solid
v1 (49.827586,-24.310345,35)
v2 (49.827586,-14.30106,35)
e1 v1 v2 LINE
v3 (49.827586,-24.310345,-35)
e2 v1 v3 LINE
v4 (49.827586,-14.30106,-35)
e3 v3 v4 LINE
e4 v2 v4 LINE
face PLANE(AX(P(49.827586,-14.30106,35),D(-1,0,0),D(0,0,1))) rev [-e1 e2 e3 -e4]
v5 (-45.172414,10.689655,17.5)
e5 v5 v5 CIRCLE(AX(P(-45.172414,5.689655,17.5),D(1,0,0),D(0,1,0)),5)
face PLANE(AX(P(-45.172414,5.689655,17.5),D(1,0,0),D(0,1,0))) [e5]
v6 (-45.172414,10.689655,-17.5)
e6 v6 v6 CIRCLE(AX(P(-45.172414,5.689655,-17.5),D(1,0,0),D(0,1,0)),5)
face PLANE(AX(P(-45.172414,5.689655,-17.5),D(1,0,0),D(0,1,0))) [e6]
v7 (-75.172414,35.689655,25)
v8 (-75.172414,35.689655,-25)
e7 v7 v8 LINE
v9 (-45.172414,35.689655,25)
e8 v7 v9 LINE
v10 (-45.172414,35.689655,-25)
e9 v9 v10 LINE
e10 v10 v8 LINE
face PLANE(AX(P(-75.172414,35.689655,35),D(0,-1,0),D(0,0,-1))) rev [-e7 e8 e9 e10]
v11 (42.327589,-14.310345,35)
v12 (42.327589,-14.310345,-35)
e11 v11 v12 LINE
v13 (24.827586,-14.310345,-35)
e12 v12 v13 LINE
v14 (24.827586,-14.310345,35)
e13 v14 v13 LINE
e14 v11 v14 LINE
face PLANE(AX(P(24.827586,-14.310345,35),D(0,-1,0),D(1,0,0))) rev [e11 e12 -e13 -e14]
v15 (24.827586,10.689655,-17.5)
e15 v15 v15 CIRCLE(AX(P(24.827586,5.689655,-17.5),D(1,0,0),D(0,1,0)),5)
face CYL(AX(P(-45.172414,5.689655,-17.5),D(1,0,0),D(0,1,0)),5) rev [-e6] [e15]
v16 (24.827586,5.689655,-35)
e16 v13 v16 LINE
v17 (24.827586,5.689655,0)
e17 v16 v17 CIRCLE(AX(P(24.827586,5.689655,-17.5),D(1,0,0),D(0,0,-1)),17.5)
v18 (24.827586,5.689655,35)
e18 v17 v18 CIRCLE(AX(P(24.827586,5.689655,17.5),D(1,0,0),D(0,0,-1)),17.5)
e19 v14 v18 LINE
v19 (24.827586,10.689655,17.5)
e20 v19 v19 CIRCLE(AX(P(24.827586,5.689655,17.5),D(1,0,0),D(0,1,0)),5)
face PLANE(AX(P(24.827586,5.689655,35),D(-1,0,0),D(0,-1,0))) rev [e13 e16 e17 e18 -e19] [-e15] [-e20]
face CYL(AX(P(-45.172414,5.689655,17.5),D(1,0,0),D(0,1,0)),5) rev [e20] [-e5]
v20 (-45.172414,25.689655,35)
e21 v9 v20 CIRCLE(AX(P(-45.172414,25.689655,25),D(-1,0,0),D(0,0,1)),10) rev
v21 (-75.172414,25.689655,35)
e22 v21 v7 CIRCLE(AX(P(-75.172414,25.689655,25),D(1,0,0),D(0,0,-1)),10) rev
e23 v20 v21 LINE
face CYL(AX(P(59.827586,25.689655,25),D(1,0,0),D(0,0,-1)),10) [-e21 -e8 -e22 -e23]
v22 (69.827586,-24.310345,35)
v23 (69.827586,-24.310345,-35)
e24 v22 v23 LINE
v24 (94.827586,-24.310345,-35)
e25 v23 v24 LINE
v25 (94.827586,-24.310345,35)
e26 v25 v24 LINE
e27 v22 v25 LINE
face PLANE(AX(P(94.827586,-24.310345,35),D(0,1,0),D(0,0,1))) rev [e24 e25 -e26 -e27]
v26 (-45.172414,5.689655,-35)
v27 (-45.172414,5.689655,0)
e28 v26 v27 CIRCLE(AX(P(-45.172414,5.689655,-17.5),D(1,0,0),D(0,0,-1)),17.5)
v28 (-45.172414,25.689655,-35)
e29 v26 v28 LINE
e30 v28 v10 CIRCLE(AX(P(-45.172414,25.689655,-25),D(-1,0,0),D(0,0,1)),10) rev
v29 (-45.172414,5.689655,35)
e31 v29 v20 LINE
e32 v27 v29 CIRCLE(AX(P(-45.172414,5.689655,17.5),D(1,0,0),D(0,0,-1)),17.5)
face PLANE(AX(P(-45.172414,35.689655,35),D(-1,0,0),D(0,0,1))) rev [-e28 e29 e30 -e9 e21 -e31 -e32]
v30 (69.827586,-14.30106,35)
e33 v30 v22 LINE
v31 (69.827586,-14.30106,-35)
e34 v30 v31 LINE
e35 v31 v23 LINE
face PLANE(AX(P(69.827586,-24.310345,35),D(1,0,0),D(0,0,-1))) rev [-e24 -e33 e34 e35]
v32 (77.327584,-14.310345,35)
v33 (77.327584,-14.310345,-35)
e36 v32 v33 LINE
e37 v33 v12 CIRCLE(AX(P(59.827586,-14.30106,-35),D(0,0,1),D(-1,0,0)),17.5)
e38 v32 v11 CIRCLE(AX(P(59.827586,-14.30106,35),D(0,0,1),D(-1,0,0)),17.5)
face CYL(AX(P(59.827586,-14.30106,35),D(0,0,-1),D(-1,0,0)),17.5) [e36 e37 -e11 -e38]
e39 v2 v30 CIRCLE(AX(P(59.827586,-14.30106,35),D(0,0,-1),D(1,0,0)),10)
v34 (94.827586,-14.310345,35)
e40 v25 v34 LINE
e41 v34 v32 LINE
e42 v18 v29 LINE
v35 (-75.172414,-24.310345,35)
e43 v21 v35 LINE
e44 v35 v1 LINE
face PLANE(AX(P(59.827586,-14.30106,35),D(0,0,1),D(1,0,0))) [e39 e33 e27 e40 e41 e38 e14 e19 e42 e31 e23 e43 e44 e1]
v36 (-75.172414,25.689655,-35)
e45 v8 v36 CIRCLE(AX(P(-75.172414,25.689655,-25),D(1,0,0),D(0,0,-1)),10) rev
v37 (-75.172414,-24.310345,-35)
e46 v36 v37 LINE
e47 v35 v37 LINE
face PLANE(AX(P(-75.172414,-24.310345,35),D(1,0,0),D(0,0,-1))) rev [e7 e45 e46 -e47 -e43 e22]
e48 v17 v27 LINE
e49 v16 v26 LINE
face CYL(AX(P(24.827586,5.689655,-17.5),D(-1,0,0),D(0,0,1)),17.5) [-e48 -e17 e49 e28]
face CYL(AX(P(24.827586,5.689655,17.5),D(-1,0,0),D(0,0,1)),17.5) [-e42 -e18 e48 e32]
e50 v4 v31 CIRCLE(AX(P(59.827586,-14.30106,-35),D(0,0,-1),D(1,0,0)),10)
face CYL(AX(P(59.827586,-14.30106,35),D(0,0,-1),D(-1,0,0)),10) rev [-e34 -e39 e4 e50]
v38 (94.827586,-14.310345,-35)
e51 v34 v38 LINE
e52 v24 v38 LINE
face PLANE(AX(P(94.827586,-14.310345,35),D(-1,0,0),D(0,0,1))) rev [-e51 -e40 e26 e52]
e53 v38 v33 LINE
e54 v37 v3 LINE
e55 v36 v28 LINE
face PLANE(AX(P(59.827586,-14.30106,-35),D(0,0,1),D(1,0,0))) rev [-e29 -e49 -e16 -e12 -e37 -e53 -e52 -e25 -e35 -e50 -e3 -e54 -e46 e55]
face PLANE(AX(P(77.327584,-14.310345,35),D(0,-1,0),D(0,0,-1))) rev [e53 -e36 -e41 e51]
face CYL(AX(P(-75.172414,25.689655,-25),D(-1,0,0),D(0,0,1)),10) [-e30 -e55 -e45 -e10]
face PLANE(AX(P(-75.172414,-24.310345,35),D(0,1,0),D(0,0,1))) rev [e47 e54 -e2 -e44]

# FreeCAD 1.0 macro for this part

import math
import FreeCAD as App
import Part
import Sketcher

V = App.Vector


def edges_at(feature, points):
    """Names of the edges that pass closest to the given points."""
    edges = feature.Shape.Edges
    near = lambda p: min(range(len(edges)), key=lambda i: edges[i].distToShape(Part.Vertex(*p))[0])
    return sorted({f"Edge{near(p) + 1}" for p in points})

doc = App.newDocument("Part")
body = doc.addObject("PartDesign::Body", "Body")

# Sketch on XY plane
sketch1 = body.newObject("Sketcher::SketchObject", "Sketch")
sketch1.AttachmentSupport = (doc.getObject("XY_Plane"), [""])
sketch1.MapMode = "FlatFace"
sketch1.addGeometry([
    Part.LineSegment(V(-75, 36, 0), V(-75, -24, 0)),  # 0
    Part.LineSegment(V(-75, -24, 0), V(50, -24, 0)),  # 1
    Part.LineSegment(V(50, -24, 0), V(50, -14, 0)),  # 2
    Part.ArcOfCircle(Part.Circle(V(60, -14, 0), V(0, 0, 1), 10), math.radians(0), math.radians(180)),  # 3
    Part.LineSegment(V(70, -14, 0), V(70, -24, 0)),  # 4
    Part.LineSegment(V(70, -24, 0), V(95, -24, 0)),  # 5
    Part.LineSegment(V(95, -24, 0), V(95, -14, 0)),  # 6
    Part.LineSegment(V(95, -14, 0), V(77, -14, 0)),  # 7
    Part.ArcOfCircle(Part.Circle(V(60, -14, 0), V(0, 0, 1), 18), math.radians(0), math.radians(180)),  # 8
    Part.LineSegment(V(42, -14, 0), V(25, -14, 0)),  # 9
    Part.LineSegment(V(25, -14, 0), V(25, 6, 0)),  # 10
    Part.LineSegment(V(25, 6, 0), V(-45, 6, 0)),  # 11
    Part.LineSegment(V(-45, 6, 0), V(-45, 36, 0)),  # 12
    Part.LineSegment(V(-45, 36, 0), V(-75, 36, 0)),  # 13
], False)
sketch1.addConstraint([
    Sketcher.Constraint("Coincident", 0, 2, 1, 1),
    Sketcher.Constraint("Coincident", 1, 2, 2, 1),
    Sketcher.Constraint("Tangent", 2, 2, 3, 2),
    Sketcher.Constraint("Tangent", 3, 1, 4, 1),
    Sketcher.Constraint("Coincident", 4, 2, 5, 1),
    Sketcher.Constraint("Coincident", 5, 2, 6, 1),
    Sketcher.Constraint("Coincident", 6, 2, 7, 1),
    Sketcher.Constraint("Coincident", 7, 2, 8, 1),
    Sketcher.Constraint("Coincident", 8, 2, 9, 1),
    Sketcher.Constraint("Coincident", 9, 2, 10, 1),
    Sketcher.Constraint("Coincident", 10, 2, 11, 1),
    Sketcher.Constraint("Coincident", 11, 2, 12, 1),
    Sketcher.Constraint("Coincident", 12, 2, 13, 1),
    Sketcher.Constraint("Coincident", 13, 2, 0, 1),
    Sketcher.Constraint("Vertical", 0),
    Sketcher.Constraint("Horizontal", 1),
    Sketcher.Constraint("Vertical", 2),
    Sketcher.Constraint("Vertical", 4),
    Sketcher.Constraint("Horizontal", 5),
    Sketcher.Constraint("Vertical", 6),
    Sketcher.Constraint("Horizontal", 7),
    Sketcher.Constraint("Horizontal", 9),
    Sketcher.Constraint("Vertical", 10),
    Sketcher.Constraint("Horizontal", 11),
    Sketcher.Constraint("Vertical", 12),
    Sketcher.Constraint("Horizontal", 13),
    Sketcher.Constraint("Coincident", 8, 3, 3, 3),
    Sketcher.Constraint("Horizontal", 1, 2, 4, 2),
    Sketcher.Constraint("Horizontal", 7, 2, 8, 2),
    Sketcher.Constraint("Equal", 7, 9),
    Sketcher.Constraint("Equal", 13, 12),
    Sketcher.Constraint("Radius", 3, 10.0),
    Sketcher.Constraint("Radius", 8, 17.5),
    Sketcher.Constraint("DistanceX", 1, 1, 1, 2, 125.0),
    Sketcher.Constraint("DistanceX", 5, 1, 5, 2, 25.0),
    Sketcher.Constraint("DistanceX", 11, 2, 11, 1, 70.0),
    Sketcher.Constraint("DistanceY", 0, 2, 0, 1, 60.0),
    Sketcher.Constraint("DistanceY", 6, 1, 6, 2, 10.0),
    Sketcher.Constraint("DistanceY", 2, 1, 2, 2, 10.009285),
    Sketcher.Constraint("DistanceY", 3, 3, -1, 1, 14.30106),
    Sketcher.Constraint("DistanceX", -1, 1, 8, 2, 42.327589),
])
pad1 = body.newObject("PartDesign::Pad", "Pad")
pad1.Profile = sketch1
pad1.Length = 70
pad1.Midplane = True
doc.recompute()

fillet = body.newObject("PartDesign::Fillet", "Fillet")
fillet.Base = (pad1, edges_at(pad1, [(-60.172, 35.69, 35)]))
fillet.Radius = 10
doc.recompute()

fillet2 = body.newObject("PartDesign::Fillet", "Fillet001")
fillet2.Base = (fillet, edges_at(fillet, [(-60.172, 35.69, -35)]))
fillet2.Radius = 10

# Sketch on YZ plane
sketch2 = body.newObject("Sketcher::SketchObject", "Sketch001")
sketch2.AttachmentSupport = (doc.getObject("YZ_Plane"), [""])
sketch2.MapMode = "FlatFace"
sketch2.AttachmentOffset = App.Placement(V(0, 0, -45.172414), App.Rotation())
sketch2.addGeometry([
    Part.ArcOfCircle(Part.Circle(V(6, 18, 0), V(0, 0, 1), 18), math.radians(-90), math.radians(90)),
    Part.LineSegment(V(6, 35, 0), V(6, 0, 0)),
    Part.ArcOfCircle(Part.Circle(V(6, -18, 0), V(0, 0, 1), 18), math.radians(-90), math.radians(90)),
    Part.LineSegment(V(6, 0, 0), V(6, -35, 0)),
], False)
sketch2.addConstraint([
    Sketcher.Constraint("Coincident", 0, 1, 1, 2),
    Sketcher.Constraint("Coincident", 1, 1, 0, 2),
    Sketcher.Constraint("Coincident", 2, 1, 3, 2),
    Sketcher.Constraint("Coincident", 3, 1, 2, 2),
    Sketcher.Constraint("Vertical", 1),
    Sketcher.Constraint("Vertical", 3),
    Sketcher.Constraint("Coincident", 3, 1, 0, 1),
    Sketcher.Constraint("Equal", 0, 2),
    Sketcher.Constraint("Symmetric", 0, 3, 2, 3, -1),
    Sketcher.Constraint("Vertical", 2, 3, 0, 1),
    Sketcher.Constraint("Radius", 0, 17.5),
    Sketcher.Constraint("DistanceX", -1, 1, 0, 3, 5.689655),
])
pad2 = body.newObject("PartDesign::Pad", "Pad001")
pad2.Profile = sketch2
pad2.Length = 70

# Sketch on YZ plane
sketch3 = body.newObject("Sketcher::SketchObject", "Sketch002")
sketch3.AttachmentSupport = (doc.getObject("YZ_Plane"), [""])
sketch3.MapMode = "FlatFace"
sketch3.AttachmentOffset = App.Placement(V(0, 0, 24.827586), App.Rotation())
sketch3.addGeometry([
    Part.Circle(V(6, 18, 0), V(0, 0, 1), 5),
    Part.Circle(V(6, -18, 0), V(0, 0, 1), 5),
], False)
sketch3.addConstraint([
    Sketcher.Constraint("Equal", 0, 1),
    Sketcher.Constraint("Symmetric", 0, 3, 1, 3, -1),
    Sketcher.Constraint("Diameter", 0, 10.0),
    Sketcher.Constraint("DistanceY", 1, 3, 0, 3, 35.0),
    Sketcher.Constraint("DistanceX", -1, 1, 0, 3, 5.689655),
])
pocket1 = body.newObject("PartDesign::Pocket", "Pocket")
pocket1.Profile = sketch3
pocket1.Length = 70

doc.recompute()
